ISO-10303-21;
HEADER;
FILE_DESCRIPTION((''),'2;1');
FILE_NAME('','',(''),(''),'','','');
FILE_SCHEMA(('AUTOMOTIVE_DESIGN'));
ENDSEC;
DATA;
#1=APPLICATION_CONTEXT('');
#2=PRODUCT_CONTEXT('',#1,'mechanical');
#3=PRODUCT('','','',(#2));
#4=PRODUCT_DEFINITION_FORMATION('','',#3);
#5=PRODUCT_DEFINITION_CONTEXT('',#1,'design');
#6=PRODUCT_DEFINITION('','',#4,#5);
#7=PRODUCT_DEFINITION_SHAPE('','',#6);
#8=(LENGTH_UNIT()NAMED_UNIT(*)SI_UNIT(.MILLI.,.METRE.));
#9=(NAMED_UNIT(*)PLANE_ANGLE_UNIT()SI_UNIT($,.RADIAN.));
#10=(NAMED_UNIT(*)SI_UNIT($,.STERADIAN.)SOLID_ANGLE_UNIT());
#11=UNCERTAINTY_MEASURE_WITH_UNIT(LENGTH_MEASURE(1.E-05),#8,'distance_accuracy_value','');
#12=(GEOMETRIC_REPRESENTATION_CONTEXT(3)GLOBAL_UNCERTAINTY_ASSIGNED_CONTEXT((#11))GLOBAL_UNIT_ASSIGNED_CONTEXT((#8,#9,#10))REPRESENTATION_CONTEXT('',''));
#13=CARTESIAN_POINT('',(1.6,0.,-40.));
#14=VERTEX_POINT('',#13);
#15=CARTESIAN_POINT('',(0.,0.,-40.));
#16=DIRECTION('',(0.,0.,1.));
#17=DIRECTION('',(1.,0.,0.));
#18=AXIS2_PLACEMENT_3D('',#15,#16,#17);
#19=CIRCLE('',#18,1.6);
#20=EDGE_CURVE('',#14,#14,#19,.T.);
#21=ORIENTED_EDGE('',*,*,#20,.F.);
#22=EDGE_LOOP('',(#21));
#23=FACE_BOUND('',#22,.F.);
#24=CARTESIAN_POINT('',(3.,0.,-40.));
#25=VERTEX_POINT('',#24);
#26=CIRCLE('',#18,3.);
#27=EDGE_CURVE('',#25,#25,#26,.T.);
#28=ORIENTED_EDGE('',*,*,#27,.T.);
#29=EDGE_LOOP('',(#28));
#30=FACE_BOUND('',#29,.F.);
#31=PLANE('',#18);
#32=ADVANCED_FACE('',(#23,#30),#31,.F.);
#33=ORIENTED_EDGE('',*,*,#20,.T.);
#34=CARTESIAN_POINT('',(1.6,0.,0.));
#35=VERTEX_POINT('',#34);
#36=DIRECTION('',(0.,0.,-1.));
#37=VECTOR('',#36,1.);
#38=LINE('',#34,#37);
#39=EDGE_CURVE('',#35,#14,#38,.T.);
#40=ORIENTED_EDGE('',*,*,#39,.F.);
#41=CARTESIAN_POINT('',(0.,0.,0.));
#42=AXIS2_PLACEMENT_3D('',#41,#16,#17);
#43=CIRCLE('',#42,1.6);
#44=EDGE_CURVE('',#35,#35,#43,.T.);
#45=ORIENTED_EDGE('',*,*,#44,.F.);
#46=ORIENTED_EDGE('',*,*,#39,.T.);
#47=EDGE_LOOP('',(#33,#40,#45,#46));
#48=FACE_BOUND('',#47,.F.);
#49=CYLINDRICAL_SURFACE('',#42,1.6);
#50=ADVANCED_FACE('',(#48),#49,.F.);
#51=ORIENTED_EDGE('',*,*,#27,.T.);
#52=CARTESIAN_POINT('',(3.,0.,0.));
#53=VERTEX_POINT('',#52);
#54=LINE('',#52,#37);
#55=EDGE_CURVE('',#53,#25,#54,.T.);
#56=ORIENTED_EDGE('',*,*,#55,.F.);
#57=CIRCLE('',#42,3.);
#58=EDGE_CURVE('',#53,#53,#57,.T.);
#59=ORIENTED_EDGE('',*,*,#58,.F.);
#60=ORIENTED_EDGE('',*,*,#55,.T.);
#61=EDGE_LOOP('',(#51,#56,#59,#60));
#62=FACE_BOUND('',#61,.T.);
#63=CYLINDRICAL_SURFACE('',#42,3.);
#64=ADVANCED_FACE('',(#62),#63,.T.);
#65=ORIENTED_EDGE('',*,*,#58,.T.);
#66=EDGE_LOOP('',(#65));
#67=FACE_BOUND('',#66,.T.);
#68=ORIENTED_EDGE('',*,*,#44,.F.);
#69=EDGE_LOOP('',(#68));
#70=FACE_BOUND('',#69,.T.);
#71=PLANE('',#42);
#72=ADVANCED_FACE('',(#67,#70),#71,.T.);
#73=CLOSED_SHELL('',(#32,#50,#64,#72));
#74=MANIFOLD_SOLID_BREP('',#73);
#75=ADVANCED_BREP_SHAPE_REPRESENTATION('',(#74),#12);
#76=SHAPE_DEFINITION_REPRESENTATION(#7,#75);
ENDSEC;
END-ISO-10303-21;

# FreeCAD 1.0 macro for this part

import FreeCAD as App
import Part
import Sketcher
Q = App.Units.Quantity

doc = App.newDocument("Part")
params = doc.addObject("Spreadsheet::Sheet", "Params")
for row, (alias, value) in enumerate([
    ("sketch1_diameter", "6 mm"),
    ("sketch1_diameter2", "3.2 mm"),
    ("pad1_length", "40 mm"),
], start=1):
    params.set(f"A{row}", alias)
    params.set(f"B{row}", "=" + value)
    params.setAlias(f"B{row}", alias)

body = doc.addObject("PartDesign::Body", "Body")

# Sketch on XY plane
sketch1 = doc.addObject("Sketcher::SketchObject", "Sketch")
body.addObject(sketch1)
sketch1.AttachmentSupport = (doc.XY_Plane, [""])
sketch1.MapMode = "FlatFace"
sketch1.addGeometry(Part.Circle(App.Vector(0, 0, 0), App.Vector(0, 0, 1), 3), False)
sketch1.addGeometry(Part.Circle(App.Vector(0, 0, 0), App.Vector(0, 0, 1), 1.6), False)
sketch1.addConstraint(Sketcher.Constraint("Coincident", 0, 3, -1, 1))
sketch1.addConstraint(Sketcher.Constraint("Coincident", 1, 3, -1, 1))
sketch1.addConstraint(Sketcher.Constraint("Diameter", 0, Q("6 mm")))
sketch1.addConstraint(Sketcher.Constraint("Diameter", 1, Q("3.2 mm")))
sketch1.setExpression("Constraints[2]", "Params.sketch1_diameter")
sketch1.setExpression("Constraints[3]", "Params.sketch1_diameter2")
pad1 = doc.addObject("PartDesign::Pad", "Pad")
body.addObject(pad1)
pad1.Profile = sketch1
pad1.setExpression("Length", "Params.pad1_length")
pad1.Reversed = True

doc.recompute()
